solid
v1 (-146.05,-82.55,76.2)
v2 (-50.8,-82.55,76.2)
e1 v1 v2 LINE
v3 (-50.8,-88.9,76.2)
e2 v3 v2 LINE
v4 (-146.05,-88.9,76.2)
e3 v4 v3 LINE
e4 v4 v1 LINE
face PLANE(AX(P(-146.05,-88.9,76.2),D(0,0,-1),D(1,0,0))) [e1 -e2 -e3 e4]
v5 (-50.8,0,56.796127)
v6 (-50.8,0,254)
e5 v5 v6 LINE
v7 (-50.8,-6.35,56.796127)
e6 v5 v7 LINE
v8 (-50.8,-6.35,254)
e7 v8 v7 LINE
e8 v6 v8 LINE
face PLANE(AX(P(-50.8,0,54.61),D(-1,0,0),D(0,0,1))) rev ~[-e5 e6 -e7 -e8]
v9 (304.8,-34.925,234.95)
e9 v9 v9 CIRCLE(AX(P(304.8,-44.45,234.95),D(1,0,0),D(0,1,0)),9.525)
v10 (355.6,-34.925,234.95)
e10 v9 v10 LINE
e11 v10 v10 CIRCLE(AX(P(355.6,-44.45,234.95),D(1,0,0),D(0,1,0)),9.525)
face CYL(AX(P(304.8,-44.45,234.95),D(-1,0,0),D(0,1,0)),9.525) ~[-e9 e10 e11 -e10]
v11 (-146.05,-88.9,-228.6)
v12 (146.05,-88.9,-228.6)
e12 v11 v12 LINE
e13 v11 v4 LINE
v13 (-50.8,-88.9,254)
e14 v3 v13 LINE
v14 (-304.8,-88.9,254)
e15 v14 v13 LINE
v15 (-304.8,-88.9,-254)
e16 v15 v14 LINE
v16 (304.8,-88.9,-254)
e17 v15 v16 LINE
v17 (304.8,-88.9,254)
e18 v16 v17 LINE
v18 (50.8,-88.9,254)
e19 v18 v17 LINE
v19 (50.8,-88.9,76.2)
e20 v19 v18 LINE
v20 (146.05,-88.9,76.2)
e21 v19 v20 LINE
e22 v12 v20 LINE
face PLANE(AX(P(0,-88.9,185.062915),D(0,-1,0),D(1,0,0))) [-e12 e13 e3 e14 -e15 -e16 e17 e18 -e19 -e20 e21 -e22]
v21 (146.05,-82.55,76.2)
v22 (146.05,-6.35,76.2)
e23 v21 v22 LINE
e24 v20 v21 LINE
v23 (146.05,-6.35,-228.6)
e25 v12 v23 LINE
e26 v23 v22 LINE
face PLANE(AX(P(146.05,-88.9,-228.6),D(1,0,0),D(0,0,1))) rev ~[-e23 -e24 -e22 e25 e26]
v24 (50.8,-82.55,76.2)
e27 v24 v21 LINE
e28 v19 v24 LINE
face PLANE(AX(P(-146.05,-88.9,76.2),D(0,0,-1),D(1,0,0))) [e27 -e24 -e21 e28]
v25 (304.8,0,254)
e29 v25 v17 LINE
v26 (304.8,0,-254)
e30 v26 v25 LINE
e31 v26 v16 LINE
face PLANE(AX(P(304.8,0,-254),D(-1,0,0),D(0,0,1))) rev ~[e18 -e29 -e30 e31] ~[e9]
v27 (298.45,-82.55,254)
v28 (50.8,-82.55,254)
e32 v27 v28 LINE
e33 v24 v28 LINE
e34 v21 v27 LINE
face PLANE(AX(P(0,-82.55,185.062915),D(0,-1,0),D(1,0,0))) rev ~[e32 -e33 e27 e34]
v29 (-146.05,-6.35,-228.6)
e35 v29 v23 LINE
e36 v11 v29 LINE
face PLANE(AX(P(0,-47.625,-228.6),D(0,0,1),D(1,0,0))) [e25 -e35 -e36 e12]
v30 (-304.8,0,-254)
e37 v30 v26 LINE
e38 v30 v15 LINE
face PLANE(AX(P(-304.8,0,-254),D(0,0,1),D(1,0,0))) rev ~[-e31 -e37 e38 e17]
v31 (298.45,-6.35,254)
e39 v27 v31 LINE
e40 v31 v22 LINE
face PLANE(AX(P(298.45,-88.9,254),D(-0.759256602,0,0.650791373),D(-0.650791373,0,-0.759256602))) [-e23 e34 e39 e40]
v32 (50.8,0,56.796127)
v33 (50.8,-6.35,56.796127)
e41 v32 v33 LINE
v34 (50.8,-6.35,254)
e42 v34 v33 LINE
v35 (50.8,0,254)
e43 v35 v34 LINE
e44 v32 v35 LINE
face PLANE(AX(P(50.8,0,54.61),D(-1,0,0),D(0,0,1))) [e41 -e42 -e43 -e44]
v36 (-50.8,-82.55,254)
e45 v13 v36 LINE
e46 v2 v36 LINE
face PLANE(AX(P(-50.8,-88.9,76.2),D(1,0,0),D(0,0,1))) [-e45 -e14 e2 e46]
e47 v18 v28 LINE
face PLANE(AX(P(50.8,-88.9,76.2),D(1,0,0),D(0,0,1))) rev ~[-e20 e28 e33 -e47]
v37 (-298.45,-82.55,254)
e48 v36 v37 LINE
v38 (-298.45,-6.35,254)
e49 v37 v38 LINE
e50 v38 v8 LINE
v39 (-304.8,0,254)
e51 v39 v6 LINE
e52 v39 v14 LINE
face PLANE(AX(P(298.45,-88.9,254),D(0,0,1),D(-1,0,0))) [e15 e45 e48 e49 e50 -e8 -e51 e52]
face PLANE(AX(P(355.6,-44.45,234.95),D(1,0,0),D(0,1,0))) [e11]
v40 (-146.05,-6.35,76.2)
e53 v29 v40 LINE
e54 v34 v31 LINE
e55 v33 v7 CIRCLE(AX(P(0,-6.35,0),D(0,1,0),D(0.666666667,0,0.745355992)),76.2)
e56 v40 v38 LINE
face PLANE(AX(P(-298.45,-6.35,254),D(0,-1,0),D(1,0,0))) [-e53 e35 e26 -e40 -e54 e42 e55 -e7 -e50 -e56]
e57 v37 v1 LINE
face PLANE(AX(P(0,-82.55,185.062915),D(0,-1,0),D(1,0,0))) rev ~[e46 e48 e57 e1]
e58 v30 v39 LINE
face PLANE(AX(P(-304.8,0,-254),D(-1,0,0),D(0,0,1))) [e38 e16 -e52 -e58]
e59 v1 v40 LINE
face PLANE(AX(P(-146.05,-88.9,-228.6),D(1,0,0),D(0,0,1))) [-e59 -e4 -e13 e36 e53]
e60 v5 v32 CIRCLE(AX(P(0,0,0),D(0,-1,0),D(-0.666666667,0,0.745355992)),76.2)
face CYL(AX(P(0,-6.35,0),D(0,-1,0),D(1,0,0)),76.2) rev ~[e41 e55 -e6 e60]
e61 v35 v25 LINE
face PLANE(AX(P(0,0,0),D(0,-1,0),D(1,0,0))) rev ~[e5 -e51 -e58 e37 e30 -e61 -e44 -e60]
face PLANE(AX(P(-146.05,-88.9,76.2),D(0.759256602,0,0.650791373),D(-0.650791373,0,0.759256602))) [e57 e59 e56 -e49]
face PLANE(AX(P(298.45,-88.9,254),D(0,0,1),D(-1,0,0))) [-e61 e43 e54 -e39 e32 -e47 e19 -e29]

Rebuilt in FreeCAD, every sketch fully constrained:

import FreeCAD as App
import Part
import Sketcher
from FreeCAD import Vector
Q = App.Units.Quantity


def add_polygon(sketch, points):
    """Adds a closed chain of lines whose ends are joined by coincident constraints."""
    first, n = sketch.GeometryCount, len(points)
    for a, b in zip(points, points[1:] + points[:1]):
        sketch.addGeometry(Part.LineSegment(App.Vector(*a, 0), App.Vector(*b, 0)), False)
    for i in range(n):
        sketch.addConstraint(Sketcher.Constraint("Coincident", first + i, 2, first + (i + 1) % n, 1))

doc = App.newDocument("Part")
body = doc.addObject("PartDesign::Body", "Body")

# Sketch on XZ plane
sketch1 = doc.addObject("Sketcher::SketchObject", "Sketch")
body.addObject(sketch1)
sketch1.AttachmentSupport = (doc.XZ_Plane, [""])
sketch1.MapMode = "FlatFace"
add_polygon(sketch1, [(-304.8, 254), (-304.8, -254), (304.8, -254), (304.8, 254)])  # lines 0-3
sketch1.addConstraint([
    Sketcher.Constraint("Vertical", 0),
    Sketcher.Constraint("Horizontal", 1),
    Sketcher.Constraint("Vertical", 2),
    Sketcher.Constraint("Horizontal", 3),
    Sketcher.Constraint("Symmetric", 0, 2, 2, 2, -1, 1),
    Sketcher.Constraint("DistanceX", 1, 1, 1, 2, Q("24 in")),
    Sketcher.Constraint("DistanceY", 0, 2, 0, 1, Q("20 in")),
])
pad1 = doc.addObject("PartDesign::Pad", "Pad")
body.addObject(pad1)
pad1.Profile = sketch1
pad1.Length = Q("3.5 in")

# Sketch on XY plane
sketch2 = doc.addObject("Sketcher::SketchObject", "Sketch001")
body.addObject(sketch2)
sketch2.AttachmentSupport = (doc.XY_Plane, [""])
sketch2.MapMode = "FlatFace"
sketch2.AttachmentOffset = App.Placement(Vector(0, 0, 10 * 25.4), App.Rotation())
add_polygon(sketch2, [(-298.45, -6.35), (-298.45, -88.9), (298.45, -88.9), (298.45, -6.35)])  # lines 0-3
sketch2.addConstraint([
    Sketcher.Constraint("Vertical", 0),
    Sketcher.Constraint("Horizontal", 1),
    Sketcher.Constraint("Vertical", 2),
    Sketcher.Constraint("Horizontal", 3),
    Sketcher.Constraint("DistanceX", 1, 1, 1, 2, Q("23.5 in")),
    Sketcher.Constraint("DistanceY", 0, 2, 0, 1, Q("3.25 in")),
    Sketcher.Constraint("DistanceY", 0, 2, -1, 1, Q("3.5 in")),
    Sketcher.Constraint("DistanceX", 0, 2, -1, 1, Q("11.75 in")),
])
pocket1 = doc.addObject("PartDesign::Pocket", "Pocket")
body.addObject(pocket1)
pocket1.Profile = sketch2
pocket1.Length = Q("19 in")

# Sketch on YZ plane
sketch3 = doc.addObject("Sketcher::SketchObject", "Sketch002")
body.addObject(sketch3)
sketch3.AttachmentSupport = (doc.YZ_Plane, [""])
sketch3.MapMode = "FlatFace"
sketch3.AttachmentOffset = App.Placement(Vector(0, 0, 12 * 25.4), App.Rotation())
sketch3.addGeometry(Part.Circle(Vector(-44.45, 234.95, 0), Vector(0, 0, 1), 9.525), False)
sketch3.addConstraint([
    Sketcher.Constraint("Diameter", 0, Q("0.75 in")),
    Sketcher.Constraint("DistanceX", 0, 3, -1, 1, Q("1.75 in")),
    Sketcher.Constraint("DistanceY", -1, 1, 0, 3, Q("9.25 in")),
])
pad2 = doc.addObject("PartDesign::Pad", "Pad001")
body.addObject(pad2)
pad2.Profile = sketch3
pad2.Length = Q("2 in")

# Sketch on XZ plane
sketch4 = doc.addObject("Sketcher::SketchObject", "Sketch003")
body.addObject(sketch4)
sketch4.AttachmentSupport = (doc.XZ_Plane, [""])
sketch4.MapMode = "FlatFace"
sketch4.AttachmentOffset = App.Placement(Vector(0, 0, 3.5 * 25.4), App.Rotation())
add_polygon(sketch4, [(-298.45, 254), (-298.45, 76.2), (-146.05, 76.2)])  # lines 0-2
add_polygon(sketch4, [(298.45, 254), (146.05, 76.2), (298.45, 76.2)])  # lines 3-5
sketch4.addConstraint([
    Sketcher.Constraint("Vertical", 0),
    Sketcher.Constraint("Horizontal", 1),
    Sketcher.Constraint("Horizontal", 4),
    Sketcher.Constraint("Vertical", 5),
    Sketcher.Constraint("Symmetric", 1, 2, 3, 2, -2),
    Sketcher.Constraint("Symmetric", 2, 2, 5, 2, -2),
    Sketcher.Constraint("DistanceX", 1, 1, 1, 2, Q("6 in")),
    Sketcher.Constraint("DistanceY", 0, 2, 0, 1, Q("7 in")),
    Sketcher.Constraint("DistanceY", -1, 1, 0, 2, Q("3 in")),
    Sketcher.Constraint("DistanceX", 1, 2, 3, 2, Q("11.5 in")),
])
pad3 = doc.addObject("PartDesign::Pad", "Pad002")
body.addObject(pad3)
pad3.Profile = sketch4
pad3.Type = "UpToLast"
pad3.Reversed = True

# Sketch on XZ plane
sketch5 = doc.addObject("Sketcher::SketchObject", "Sketch004")
body.addObject(sketch5)
sketch5.AttachmentSupport = (doc.XZ_Plane, [""])
sketch5.MapMode = "FlatFace"
sketch5.AttachmentOffset = App.Placement(Vector(0, 0, 3.5 * 25.4), App.Rotation())
add_polygon(sketch5, [(-298.45, 76.2), (-298.45, -228.6), (-146.05, -228.6), (-146.05, 76.2)])  # lines 0-3
add_polygon(sketch5, [(146.05, 76.2), (146.05, -228.6), (298.45, -228.6), (298.45, 76.2)])  # lines 4-7
sketch5.addConstraint([
    Sketcher.Constraint("Vertical", 0),
    Sketcher.Constraint("Horizontal", 1),
    Sketcher.Constraint("Vertical", 2),
    Sketcher.Constraint("Horizontal", 3),
    Sketcher.Constraint("Vertical", 4),
    Sketcher.Constraint("Horizontal", 5),
    Sketcher.Constraint("Vertical", 6),
    Sketcher.Constraint("Horizontal", 7),
    Sketcher.Constraint("Symmetric", 1, 2, 4, 2, -2),
    Sketcher.Constraint("Symmetric", 3, 2, 6, 2, -2),
    Sketcher.Constraint("DistanceX", 1, 1, 1, 2, Q("6 in")),
    Sketcher.Constraint("DistanceY", 0, 2, 0, 1, Q("12 in")),
    Sketcher.Constraint("DistanceY", 0, 2, -1, 1, Q("9 in")),
    Sketcher.Constraint("DistanceX", 1, 2, 4, 2, Q("11.5 in")),
])
pad4 = doc.addObject("PartDesign::Pad", "Pad003")
body.addObject(pad4)
pad4.Profile = sketch5
pad4.Type = "UpToLast"
pad4.Reversed = True

# Sketch on XZ plane
sketch6 = doc.addObject("Sketcher::SketchObject", "Sketch005")
body.addObject(sketch6)
sketch6.AttachmentSupport = (doc.XZ_Plane, [""])
sketch6.MapMode = "FlatFace"
sketch6.AttachmentOffset = App.Placement(Vector(0, 0, 3.5 * 25.4), App.Rotation())
add_polygon(sketch6, [(298.45, 254), (-298.45, 254), (-146.05, 76.2), (146.05, 76.2)])  # lines 0-3
sketch6.addConstraint([
    Sketcher.Constraint("Horizontal", 0),
    Sketcher.Constraint("Horizontal", 2),
    Sketcher.Constraint("Equal", 1, 3),
    Sketcher.Constraint("DistanceX", 0, 2, 0, 1, Q("23.5 in")),
    Sketcher.Constraint("DistanceX", 2, 1, 2, 2, Q("11.5 in")),
    Sketcher.Constraint("DistanceY", -1, 1, 0, 2, Q("10 in")),
    Sketcher.Constraint("DistanceY", -1, 1, 1, 2, Q("3 in")),
    Sketcher.Constraint("DistanceX", 0, 2, -1, 1, Q("11.75 in")),
])
pad5 = doc.addObject("PartDesign::Pad", "Pad004")
body.addObject(pad5)
pad5.Profile = sketch6
pad5.Length = Q("0.25 in")
pad5.Reversed = True

# Sketch on XZ plane
sketch7 = doc.addObject("Sketcher::SketchObject", "Sketch006")
body.addObject(sketch7)
sketch7.AttachmentSupport = (doc.XZ_Plane, [""])
sketch7.MapMode = "FlatFace"
sketch7.AttachmentOffset = App.Placement(Vector(0, 0, 0.25 * 25.4), App.Rotation())
sketch7.addGeometry(Part.Circle(Vector(0, 0, 0), Vector(0, 0, 1), 76.2), False)
sketch7.addConstraint([
    Sketcher.Constraint("Coincident", 0, 3, -1, 1),
    Sketcher.Constraint("Diameter", 0, Q("6 in")),
])
pocket2 = doc.addObject("PartDesign::Pocket", "Pocket001")
body.addObject(pocket2)
pocket2.Profile = sketch7
pocket2.Length = Q("1 in")

# Sketch on XZ plane
sketch8 = doc.addObject("Sketcher::SketchObject", "Sketch007")
body.addObject(sketch8)
sketch8.AttachmentSupport = (doc.XZ_Plane, [""])
sketch8.MapMode = "FlatFace"
sketch8.AttachmentOffset = App.Placement(Vector(0, 0, 3.5 * 25.4), App.Rotation())
add_polygon(sketch8, [(-50.8, 254), (-50.8, 76.2), (50.8, 76.2), (50.8, 254)])  # lines 0-3
sketch8.addConstraint([
    Sketcher.Constraint("Vertical", 0),
    Sketcher.Constraint("Horizontal", 1),
    Sketcher.Constraint("Vertical", 2),
    Sketcher.Constraint("Horizontal", 3),
    Sketcher.Constraint("DistanceX", 1, 1, 1, 2, Q("4 in")),
    Sketcher.Constraint("DistanceY", 0, 2, 0, 1, Q("7 in")),
    Sketcher.Constraint("DistanceX", 0, 2, -1, 1, Q("2 in")),
    Sketcher.Constraint("DistanceY", -1, 1, 0, 2, Q("3 in")),
])
pocket3 = doc.addObject("PartDesign::Pocket", "Pocket002")
body.addObject(pocket3)
pocket3.Profile = sketch8
pocket3.Length = Q("1 in")

# Sketch on XZ plane
sketch9 = doc.addObject("Sketcher::SketchObject", "Sketch008")
body.addObject(sketch9)
sketch9.AttachmentSupport = (doc.XZ_Plane, [""])
sketch9.MapMode = "FlatFace"
add_polygon(sketch9, [(-50.8, 254), (-50.8, 54.61), (50.8, 54.61), (50.8, 254)])  # lines 0-3
sketch9.addConstraint([
    Sketcher.Constraint("Vertical", 0),
    Sketcher.Constraint("Horizontal", 1),
    Sketcher.Constraint("Vertical", 2),
    Sketcher.Constraint("Horizontal", 3),
    Sketcher.Constraint("DistanceX", 1, 1, 1, 2, Q("4 in")),
    Sketcher.Constraint("DistanceX", 0, 2, -1, 1, Q("2 in")),
    Sketcher.Constraint("DistanceY", -1, 1, 2, 2, Q("10 in")),
    Sketcher.Constraint("DistanceY", 0, 2, 0, 1, Q("7.85 in")),
])
pocket4 = doc.addObject("PartDesign::Pocket", "Pocket003")
body.addObject(pocket4)
pocket4.Profile = sketch9
pocket4.Length = Q("1 in")
pocket4.Reversed = True

doc.recompute()
